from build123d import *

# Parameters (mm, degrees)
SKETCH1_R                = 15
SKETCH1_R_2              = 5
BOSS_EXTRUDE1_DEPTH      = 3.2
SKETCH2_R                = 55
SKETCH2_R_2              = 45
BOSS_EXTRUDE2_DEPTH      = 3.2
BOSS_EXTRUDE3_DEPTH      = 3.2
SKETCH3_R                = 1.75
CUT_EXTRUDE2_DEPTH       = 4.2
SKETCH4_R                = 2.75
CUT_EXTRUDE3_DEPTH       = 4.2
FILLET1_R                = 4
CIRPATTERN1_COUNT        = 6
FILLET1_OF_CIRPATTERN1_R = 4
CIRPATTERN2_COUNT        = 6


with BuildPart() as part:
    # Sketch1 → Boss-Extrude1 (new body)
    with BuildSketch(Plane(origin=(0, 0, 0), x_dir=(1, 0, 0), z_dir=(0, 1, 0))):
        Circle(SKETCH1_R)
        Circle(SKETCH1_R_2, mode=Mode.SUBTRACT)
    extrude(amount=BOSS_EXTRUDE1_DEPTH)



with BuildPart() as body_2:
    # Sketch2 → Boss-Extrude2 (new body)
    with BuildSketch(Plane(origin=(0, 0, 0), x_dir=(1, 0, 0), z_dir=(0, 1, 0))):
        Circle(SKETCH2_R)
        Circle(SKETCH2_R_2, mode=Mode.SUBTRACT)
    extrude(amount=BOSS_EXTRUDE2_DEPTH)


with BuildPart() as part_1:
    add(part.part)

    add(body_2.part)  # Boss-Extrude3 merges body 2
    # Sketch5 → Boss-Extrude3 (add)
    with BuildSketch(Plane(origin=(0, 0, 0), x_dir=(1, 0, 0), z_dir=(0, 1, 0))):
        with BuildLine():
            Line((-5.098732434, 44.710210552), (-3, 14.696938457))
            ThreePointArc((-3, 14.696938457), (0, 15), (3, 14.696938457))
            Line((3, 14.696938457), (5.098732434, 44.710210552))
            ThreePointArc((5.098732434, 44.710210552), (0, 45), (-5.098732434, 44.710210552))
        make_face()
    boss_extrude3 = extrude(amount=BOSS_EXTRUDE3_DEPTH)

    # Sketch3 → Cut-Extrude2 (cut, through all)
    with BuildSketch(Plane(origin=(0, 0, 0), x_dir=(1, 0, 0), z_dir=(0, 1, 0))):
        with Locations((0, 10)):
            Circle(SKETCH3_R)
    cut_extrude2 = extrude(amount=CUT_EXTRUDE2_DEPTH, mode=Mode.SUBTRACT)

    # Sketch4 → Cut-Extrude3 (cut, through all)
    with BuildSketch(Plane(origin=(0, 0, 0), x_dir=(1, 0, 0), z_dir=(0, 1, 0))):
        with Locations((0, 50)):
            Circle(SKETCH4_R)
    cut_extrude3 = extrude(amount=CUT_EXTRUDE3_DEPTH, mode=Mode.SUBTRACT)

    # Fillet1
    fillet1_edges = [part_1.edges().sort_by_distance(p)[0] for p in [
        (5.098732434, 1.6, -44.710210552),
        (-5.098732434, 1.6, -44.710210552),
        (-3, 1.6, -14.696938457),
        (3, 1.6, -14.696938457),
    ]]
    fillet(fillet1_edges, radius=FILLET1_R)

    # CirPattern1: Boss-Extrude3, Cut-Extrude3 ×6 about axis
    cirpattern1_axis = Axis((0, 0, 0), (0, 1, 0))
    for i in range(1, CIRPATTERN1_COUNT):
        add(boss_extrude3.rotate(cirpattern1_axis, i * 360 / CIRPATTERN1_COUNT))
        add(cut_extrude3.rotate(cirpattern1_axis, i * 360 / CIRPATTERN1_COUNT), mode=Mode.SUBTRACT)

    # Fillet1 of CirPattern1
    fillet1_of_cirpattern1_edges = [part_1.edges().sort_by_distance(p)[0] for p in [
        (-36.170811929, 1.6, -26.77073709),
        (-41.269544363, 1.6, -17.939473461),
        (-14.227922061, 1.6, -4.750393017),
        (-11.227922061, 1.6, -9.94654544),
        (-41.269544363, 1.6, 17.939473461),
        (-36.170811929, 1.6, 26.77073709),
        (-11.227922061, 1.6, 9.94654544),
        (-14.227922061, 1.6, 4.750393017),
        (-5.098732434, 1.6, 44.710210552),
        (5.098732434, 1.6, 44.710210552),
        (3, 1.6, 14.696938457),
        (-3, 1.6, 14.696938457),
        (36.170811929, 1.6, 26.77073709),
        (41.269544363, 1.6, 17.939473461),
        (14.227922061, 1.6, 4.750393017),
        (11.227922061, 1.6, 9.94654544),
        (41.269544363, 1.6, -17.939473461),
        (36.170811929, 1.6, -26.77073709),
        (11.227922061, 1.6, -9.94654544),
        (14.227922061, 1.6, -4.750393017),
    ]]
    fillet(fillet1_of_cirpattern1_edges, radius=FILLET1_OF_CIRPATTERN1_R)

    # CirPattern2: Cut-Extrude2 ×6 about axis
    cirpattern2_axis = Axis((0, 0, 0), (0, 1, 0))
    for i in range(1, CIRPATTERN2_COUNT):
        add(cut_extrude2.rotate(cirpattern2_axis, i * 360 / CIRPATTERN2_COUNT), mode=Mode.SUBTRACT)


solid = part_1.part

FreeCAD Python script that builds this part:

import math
import FreeCAD as App
import Part
import Sketcher
from FreeCAD import Vector
Q = App.Units.Quantity


def edges_at(feature, points):
    """Names of the edges that pass closest to the given points."""
    edges = feature.Shape.Edges
    near = lambda p: min(range(len(edges)), key=lambda i: edges[i].distToShape(Part.Vertex(*p))[0])
    return sorted({f"Edge{near(p) + 1}" for p in points})

doc = App.newDocument("Part")
body = doc.addObject("PartDesign::Body", "Body")

# Sketch on XZ plane
sketch1 = body.newObject("Sketcher::SketchObject", "Sketch")
sketch1.AttachmentSupport = (doc.getObject("XZ_Plane"), [""])
sketch1.MapMode = "FlatFace"
sketch1.addGeometry([
    Part.Circle(Vector(0, 0, 0), Vector(0, 0, 1), 15),
    Part.Circle(Vector(0, 0, 0), Vector(0, 0, 1), 5),
], False)
sketch1.addConstraint([
    Sketcher.Constraint("Coincident", 0, 3, -1, 1),
    Sketcher.Constraint("Coincident", 1, 3, -1, 1),
    Sketcher.Constraint("Diameter", 0, Q("30 mm")),
    Sketcher.Constraint("Diameter", 1, Q("10 mm")),
])
pad1 = body.newObject("PartDesign::Pad", "Pad")
pad1.Profile = sketch1
pad1.Length = 3.2
pad1.Reversed = True
body2 = doc.addObject("PartDesign::Body", "Body001")

# Sketch on XZ plane
sketch2 = body2.newObject("Sketcher::SketchObject", "Sketch001")
sketch2.AttachmentSupport = (doc.getObject("XZ_Plane001"), [""])
sketch2.MapMode = "FlatFace"
sketch2.addGeometry([
    Part.Circle(Vector(0, 0, 0), Vector(0, 0, 1), 55),
    Part.Circle(Vector(0, 0, 0), Vector(0, 0, 1), 45),
], False)
sketch2.addConstraint([
    Sketcher.Constraint("Coincident", 0, 3, -1, 1),
    Sketcher.Constraint("Coincident", 1, 3, -1, 1),
    Sketcher.Constraint("Diameter", 0, Q("110 mm")),
    Sketcher.Constraint("Diameter", 1, Q("90 mm")),
])
pad2 = body2.newObject("PartDesign::Pad", "Pad001")
pad2.Profile = sketch2
pad2.Length = 3.2
pad2.Reversed = True
body.AllowCompound = True
doc.recompute()

boolean = body.newObject("PartDesign::Boolean", "Boolean")
boolean.Type = "Fuse"
boolean.addObjects([body2])

# Sketch on XZ plane
sketch3 = body.newObject("Sketcher::SketchObject", "Sketch002")
sketch3.AttachmentSupport = (doc.getObject("XZ_Plane"), [""])
sketch3.MapMode = "FlatFace"
sketch3.addGeometry([
    Part.LineSegment(Vector(-5, -45, 0), Vector(-3, -15, 0)),
    Part.ArcOfCircle(Part.Circle(Vector(0, 0, 0), Vector(0, 0, 1), 15), math.radians(-102), math.radians(-78)),
    Part.LineSegment(Vector(3, -15, 0), Vector(5, -45, 0)),
    Part.ArcOfCircle(Part.Circle(Vector(0, 0, 0), Vector(0, 0, 1), 45), math.radians(-96.51), math.radians(-83.49)),
], False)
sketch3.addConstraint([
    Sketcher.Constraint("Coincident", 0, 2, 1, 1),
    Sketcher.Constraint("Coincident", 1, 2, 2, 1),
    Sketcher.Constraint("Coincident", 2, 2, 3, 2),
    Sketcher.Constraint("Coincident", 3, 1, 0, 1),
    Sketcher.Constraint("Coincident", 1, 3, -1, 1),
    Sketcher.Constraint("Coincident", 3, 3, -1, 1),
    Sketcher.Constraint("Horizontal", 0, 2, 1, 2),
    Sketcher.Constraint("Horizontal", 2, 2, 3, 1),
    Sketcher.Constraint("Radius", 1, Q("15 mm")),
    Sketcher.Constraint("Radius", 3, Q("45 mm")),
    Sketcher.Constraint("Angle", 0, Q("86 deg")),
    Sketcher.Constraint("DistanceX", 0, 2, -1, 1, Q("3 mm")),
])
pad3 = body.newObject("PartDesign::Pad", "Pad002")
pad3.Profile = sketch3
pad3.Length = 3.2
pad3.Reversed = True

# Sketch on XZ plane
sketch4 = body.newObject("Sketcher::SketchObject", "Sketch003")
sketch4.AttachmentSupport = (doc.getObject("XZ_Plane"), [""])
sketch4.MapMode = "FlatFace"
sketch4.addGeometry(Part.Circle(Vector(0, -10, 0), Vector(0, 0, 1), 1.8), False)
sketch4.addConstraint([
    Sketcher.Constraint("PointOnObject", 0, 3, -2),
    Sketcher.Constraint("Diameter", 0, Q("3.5 mm")),
    Sketcher.Constraint("DistanceY", 0, 3, -1, 1, Q("10 mm")),
])
pocket1 = body.newObject("PartDesign::Pocket", "Pocket")
pocket1.Profile = sketch4
pocket1.Type = "ThroughAll"

# Sketch on XZ plane
sketch5 = body.newObject("Sketcher::SketchObject", "Sketch004")
sketch5.AttachmentSupport = (doc.getObject("XZ_Plane"), [""])
sketch5.MapMode = "FlatFace"
sketch5.addGeometry(Part.Circle(Vector(0, -50, 0), Vector(0, 0, 1), 2.8), False)
sketch5.addConstraint([
    Sketcher.Constraint("PointOnObject", 0, 3, -2),
    Sketcher.Constraint("Diameter", 0, Q("5.5 mm")),
    Sketcher.Constraint("DistanceY", 0, 3, -1, 1, Q("50 mm")),
])
pocket2 = body.newObject("PartDesign::Pocket", "Pocket001")
pocket2.Profile = sketch5
pocket2.Type = "ThroughAll"
doc.recompute()

fillet = body.newObject("PartDesign::Fillet", "Fillet")
fillet.Base = (pocket2, edges_at(pocket2, [
    (5.099, 1.6, -44.71),
    (-5.099, 1.6, -44.71),
    (-3, 1.6, -14.697),
    (3, 1.6, -14.697),
]))
fillet.Radius = 4
doc.recompute()

polarpattern = body.newObject("PartDesign::PolarPattern", "PolarPattern")
polarpattern.Originals = [pad3, pocket2]
polarpattern.Axis = (doc.getObject("Y_Axis"), [""])
polarpattern.Angle = 360
polarpattern.Occurrences = 6
body.Tip = polarpattern
doc.recompute()

fillet2 = body.newObject("PartDesign::Fillet", "Fillet001")
fillet2.Base = (polarpattern, edges_at(polarpattern, [
    (-36.171, 1.6, -26.771),
    (-41.27, 1.6, -17.939),
    (-14.228, 1.6, -4.75),
    (-11.228, 1.6, -9.947),
    (-41.27, 1.6, 17.939),
    (-36.171, 1.6, 26.771),
    (-11.228, 1.6, 9.947),
    (-14.228, 1.6, 4.75),
    (-5.099, 1.6, 44.71),
    (5.099, 1.6, 44.71),
    (3, 1.6, 14.697),
    (-3, 1.6, 14.697),
    (36.171, 1.6, 26.771),
    (41.27, 1.6, 17.939),
    (14.228, 1.6, 4.75),
    (11.228, 1.6, 9.947),
    (41.27, 1.6, -17.939),
    (36.171, 1.6, -26.771),
    (11.228, 1.6, -9.947),
    (14.228, 1.6, -4.75),
]))
fillet2.Radius = 4
doc.recompute()

polarpattern2 = body.newObject("PartDesign::PolarPattern", "PolarPattern001")
polarpattern2.Originals = [pocket1]
polarpattern2.Axis = (doc.getObject("Y_Axis"), [""])
polarpattern2.Angle = 360
polarpattern2.Occurrences = 6
body.Tip = polarpattern2

doc.recompute()
